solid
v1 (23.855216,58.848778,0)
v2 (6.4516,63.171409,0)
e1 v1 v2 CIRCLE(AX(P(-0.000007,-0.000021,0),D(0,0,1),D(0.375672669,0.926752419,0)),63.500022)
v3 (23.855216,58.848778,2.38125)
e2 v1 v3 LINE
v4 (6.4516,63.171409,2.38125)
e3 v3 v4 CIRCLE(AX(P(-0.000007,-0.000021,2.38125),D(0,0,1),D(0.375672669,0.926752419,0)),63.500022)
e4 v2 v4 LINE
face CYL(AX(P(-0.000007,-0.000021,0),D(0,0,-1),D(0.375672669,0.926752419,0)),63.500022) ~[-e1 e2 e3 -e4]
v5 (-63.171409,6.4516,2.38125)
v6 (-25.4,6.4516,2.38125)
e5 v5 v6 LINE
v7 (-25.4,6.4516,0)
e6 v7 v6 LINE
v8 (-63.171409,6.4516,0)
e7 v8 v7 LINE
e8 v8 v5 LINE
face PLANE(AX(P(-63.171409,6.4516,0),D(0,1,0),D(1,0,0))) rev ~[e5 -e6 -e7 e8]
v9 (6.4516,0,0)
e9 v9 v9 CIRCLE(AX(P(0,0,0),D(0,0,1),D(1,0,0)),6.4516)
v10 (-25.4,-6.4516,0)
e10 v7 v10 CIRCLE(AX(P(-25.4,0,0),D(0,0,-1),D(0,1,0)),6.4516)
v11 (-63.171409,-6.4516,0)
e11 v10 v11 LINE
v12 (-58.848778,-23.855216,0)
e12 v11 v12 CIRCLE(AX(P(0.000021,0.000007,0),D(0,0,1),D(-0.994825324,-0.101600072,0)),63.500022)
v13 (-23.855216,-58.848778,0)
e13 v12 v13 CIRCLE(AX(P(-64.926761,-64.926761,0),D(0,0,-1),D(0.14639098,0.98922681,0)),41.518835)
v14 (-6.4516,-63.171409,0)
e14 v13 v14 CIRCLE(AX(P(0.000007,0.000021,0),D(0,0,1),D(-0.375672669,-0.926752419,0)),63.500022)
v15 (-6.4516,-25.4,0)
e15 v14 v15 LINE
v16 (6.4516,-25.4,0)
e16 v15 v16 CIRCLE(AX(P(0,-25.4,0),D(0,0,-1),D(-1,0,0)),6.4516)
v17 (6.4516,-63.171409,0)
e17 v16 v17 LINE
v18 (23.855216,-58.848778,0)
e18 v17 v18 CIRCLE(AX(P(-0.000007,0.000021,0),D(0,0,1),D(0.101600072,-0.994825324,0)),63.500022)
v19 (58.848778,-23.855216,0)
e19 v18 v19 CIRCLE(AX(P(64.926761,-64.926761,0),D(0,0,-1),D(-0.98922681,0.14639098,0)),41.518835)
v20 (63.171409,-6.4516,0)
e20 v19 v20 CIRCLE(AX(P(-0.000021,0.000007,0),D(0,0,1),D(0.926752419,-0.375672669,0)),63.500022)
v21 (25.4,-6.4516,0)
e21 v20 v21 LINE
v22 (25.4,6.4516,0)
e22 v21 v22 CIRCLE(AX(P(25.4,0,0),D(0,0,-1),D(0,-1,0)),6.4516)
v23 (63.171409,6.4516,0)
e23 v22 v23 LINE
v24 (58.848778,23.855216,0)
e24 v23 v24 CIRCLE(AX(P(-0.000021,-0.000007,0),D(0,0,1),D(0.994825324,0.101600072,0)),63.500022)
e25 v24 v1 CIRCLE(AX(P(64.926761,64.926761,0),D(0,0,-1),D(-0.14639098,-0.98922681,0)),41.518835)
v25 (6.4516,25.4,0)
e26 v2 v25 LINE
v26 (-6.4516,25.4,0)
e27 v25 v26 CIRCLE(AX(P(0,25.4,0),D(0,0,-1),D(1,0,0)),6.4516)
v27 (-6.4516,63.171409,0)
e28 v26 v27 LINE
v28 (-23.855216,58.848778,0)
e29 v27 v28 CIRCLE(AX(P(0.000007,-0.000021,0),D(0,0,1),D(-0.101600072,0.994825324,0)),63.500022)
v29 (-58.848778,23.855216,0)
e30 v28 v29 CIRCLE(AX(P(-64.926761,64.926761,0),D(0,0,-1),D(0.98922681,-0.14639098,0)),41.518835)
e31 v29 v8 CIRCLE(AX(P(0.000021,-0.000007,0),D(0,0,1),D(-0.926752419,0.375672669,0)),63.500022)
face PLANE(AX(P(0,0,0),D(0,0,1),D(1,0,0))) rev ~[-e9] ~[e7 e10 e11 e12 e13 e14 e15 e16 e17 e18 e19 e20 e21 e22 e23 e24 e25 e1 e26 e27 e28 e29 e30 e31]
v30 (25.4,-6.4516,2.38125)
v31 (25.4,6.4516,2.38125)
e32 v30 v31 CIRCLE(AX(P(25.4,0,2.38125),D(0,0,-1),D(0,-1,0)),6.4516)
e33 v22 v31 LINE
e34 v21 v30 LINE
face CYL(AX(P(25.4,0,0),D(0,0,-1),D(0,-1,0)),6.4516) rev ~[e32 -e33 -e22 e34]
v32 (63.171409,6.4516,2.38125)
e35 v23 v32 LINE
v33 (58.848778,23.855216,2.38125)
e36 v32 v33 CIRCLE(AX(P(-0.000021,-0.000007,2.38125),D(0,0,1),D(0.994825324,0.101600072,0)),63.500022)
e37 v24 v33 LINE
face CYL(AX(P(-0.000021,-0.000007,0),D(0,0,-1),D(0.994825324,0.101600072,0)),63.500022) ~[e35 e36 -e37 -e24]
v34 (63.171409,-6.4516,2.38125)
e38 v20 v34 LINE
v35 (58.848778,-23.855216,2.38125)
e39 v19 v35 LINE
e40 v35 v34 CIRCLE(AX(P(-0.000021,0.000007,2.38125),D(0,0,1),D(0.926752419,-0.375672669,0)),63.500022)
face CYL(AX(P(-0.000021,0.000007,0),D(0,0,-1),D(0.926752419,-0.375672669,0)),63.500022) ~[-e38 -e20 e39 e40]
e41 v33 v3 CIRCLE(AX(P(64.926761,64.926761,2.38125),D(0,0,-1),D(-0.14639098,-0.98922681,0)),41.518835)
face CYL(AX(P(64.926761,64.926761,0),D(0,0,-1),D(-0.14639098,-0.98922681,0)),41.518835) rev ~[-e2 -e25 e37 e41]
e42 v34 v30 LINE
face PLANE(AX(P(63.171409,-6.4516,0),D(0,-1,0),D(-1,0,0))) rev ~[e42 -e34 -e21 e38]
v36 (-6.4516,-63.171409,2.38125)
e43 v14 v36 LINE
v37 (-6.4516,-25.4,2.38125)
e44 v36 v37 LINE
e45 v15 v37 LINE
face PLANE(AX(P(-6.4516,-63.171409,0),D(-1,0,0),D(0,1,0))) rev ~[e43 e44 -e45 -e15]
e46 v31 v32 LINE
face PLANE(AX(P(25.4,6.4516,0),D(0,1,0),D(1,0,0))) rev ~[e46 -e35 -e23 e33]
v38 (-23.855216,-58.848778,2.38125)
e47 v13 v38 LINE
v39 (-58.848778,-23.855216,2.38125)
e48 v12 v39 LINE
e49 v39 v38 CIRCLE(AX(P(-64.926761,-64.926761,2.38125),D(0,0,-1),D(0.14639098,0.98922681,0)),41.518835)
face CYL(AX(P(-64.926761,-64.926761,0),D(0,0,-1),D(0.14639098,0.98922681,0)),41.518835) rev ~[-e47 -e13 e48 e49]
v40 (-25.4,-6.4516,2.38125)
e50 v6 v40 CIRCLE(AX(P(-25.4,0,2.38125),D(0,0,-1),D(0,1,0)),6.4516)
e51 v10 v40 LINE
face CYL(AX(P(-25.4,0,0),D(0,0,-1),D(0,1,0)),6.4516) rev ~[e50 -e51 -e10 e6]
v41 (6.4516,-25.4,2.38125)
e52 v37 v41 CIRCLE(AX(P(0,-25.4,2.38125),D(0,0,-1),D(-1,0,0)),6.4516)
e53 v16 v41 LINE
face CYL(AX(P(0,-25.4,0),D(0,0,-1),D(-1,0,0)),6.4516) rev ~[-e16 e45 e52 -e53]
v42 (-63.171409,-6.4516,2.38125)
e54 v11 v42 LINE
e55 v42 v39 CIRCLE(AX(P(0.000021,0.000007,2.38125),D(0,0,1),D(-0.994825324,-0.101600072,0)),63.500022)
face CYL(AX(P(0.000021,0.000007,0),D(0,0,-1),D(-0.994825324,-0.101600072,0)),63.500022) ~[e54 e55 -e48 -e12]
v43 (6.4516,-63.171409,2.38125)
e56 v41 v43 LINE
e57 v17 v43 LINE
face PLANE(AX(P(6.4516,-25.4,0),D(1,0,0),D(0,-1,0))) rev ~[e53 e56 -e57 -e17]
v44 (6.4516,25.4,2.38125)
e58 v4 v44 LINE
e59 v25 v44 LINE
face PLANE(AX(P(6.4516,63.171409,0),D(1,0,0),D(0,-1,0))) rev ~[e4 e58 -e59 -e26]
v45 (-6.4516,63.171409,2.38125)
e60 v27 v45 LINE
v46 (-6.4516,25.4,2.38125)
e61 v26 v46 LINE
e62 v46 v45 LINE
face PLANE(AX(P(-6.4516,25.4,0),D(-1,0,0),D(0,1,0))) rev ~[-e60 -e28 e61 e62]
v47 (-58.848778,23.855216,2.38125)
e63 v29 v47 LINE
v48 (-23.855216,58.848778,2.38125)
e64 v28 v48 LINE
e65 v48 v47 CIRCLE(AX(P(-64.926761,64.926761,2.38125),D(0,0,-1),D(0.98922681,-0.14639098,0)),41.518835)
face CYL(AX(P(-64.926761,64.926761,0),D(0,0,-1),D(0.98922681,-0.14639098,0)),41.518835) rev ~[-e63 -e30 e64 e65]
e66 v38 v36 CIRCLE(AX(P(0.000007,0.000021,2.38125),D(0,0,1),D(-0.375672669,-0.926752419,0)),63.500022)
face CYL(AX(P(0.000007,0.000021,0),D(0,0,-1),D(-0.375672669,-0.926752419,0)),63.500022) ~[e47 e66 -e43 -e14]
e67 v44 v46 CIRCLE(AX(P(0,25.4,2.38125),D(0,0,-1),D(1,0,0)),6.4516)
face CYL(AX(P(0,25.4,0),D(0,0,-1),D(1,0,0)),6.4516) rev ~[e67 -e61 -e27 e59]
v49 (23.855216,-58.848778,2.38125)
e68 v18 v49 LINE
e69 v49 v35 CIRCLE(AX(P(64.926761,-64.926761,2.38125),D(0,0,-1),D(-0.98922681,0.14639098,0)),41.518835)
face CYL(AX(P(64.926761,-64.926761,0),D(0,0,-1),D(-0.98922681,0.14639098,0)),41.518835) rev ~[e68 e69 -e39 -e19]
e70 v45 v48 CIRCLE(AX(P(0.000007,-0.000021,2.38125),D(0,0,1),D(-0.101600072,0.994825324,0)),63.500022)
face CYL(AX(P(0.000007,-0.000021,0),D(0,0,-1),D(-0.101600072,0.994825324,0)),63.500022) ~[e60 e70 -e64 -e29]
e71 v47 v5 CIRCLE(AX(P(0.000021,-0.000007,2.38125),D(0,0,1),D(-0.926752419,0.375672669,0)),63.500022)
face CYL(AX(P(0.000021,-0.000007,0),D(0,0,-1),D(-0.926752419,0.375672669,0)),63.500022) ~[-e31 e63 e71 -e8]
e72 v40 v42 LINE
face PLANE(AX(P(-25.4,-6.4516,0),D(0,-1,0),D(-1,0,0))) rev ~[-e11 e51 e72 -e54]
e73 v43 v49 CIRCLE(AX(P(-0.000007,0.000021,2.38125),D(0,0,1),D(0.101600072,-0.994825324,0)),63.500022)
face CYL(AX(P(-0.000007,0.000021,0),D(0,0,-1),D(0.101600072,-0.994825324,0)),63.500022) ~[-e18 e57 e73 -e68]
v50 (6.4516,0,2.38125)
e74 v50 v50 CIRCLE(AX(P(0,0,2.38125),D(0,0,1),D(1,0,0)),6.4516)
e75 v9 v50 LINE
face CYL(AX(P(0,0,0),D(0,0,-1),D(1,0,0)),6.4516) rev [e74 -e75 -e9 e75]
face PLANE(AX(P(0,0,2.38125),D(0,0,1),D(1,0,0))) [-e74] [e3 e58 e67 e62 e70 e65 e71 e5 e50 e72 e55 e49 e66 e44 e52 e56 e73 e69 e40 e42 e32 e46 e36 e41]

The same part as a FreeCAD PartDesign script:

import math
import FreeCAD as App
import Part
import Sketcher
from FreeCAD import Vector
Q = App.Units.Quantity

doc = App.newDocument("Part")
body = doc.addObject("PartDesign::Body", "Body")

# Sketch on XY plane
sketch1 = doc.addObject("Sketcher::SketchObject", "Sketch")
body.addObject(sketch1)
sketch1.AttachmentSupport = (doc.XY_Plane, [""])
sketch1.MapMode = "FlatFace"
sketch1.addGeometry([
    Part.ArcOfCircle(Part.Circle(Vector(-64.926761, 64.926761, 0), Vector(0, 0, 1), 41.518835), math.radians(-81.582164), math.radians(-8.417836)),  # 0
    Part.ArcOfCircle(Part.Circle(Vector(0.000021, -0.000007, 0), Vector(0, 0, 1), 63.500022), math.radians(157.934106), math.radians(174.168683)),  # 1
    Part.LineSegment(Vector(-63.171409, 6.4516, 0), Vector(-25.4, 6.4516, 0)),  # 2
    Part.ArcOfCircle(Part.Circle(Vector(-25.4, 0, 0), Vector(0, 0, 1), 6.4516), math.radians(-90), math.radians(90)),  # 3
    Part.LineSegment(Vector(-25.4, -6.4516, 0), Vector(-63.171409, -6.4516, 0)),  # 4
    Part.ArcOfCircle(Part.Circle(Vector(0.000021, 0.000007, 0), Vector(0, 0, 1), 63.500022), math.radians(-174.168683), math.radians(-157.934106)),  # 5
    Part.ArcOfCircle(Part.Circle(Vector(-64.926761, -64.926761, 0), Vector(0, 0, 1), 41.518835), math.radians(8.417836), math.radians(81.582164)),  # 6
    Part.ArcOfCircle(Part.Circle(Vector(0.000007, 0.000021, 0), Vector(0, 0, 1), 63.500022), math.radians(-112.065894), math.radians(-95.831317)),  # 7
    Part.LineSegment(Vector(-6.4516, -63.171409, 0), Vector(-6.4516, -25.4, 0)),  # 8
    Part.ArcOfCircle(Part.Circle(Vector(0, -25.4, 0), Vector(0, 0, 1), 6.4516), math.radians(0), math.radians(180)),  # 9
    Part.LineSegment(Vector(6.4516, -25.4, 0), Vector(6.4516, -63.171409, 0)),  # 10
    Part.ArcOfCircle(Part.Circle(Vector(-0.000007, 0.000021, 0), Vector(0, 0, 1), 63.500022), math.radians(-84.168683), math.radians(-67.934106)),  # 11
    Part.ArcOfCircle(Part.Circle(Vector(64.926761, -64.926761, 0), Vector(0, 0, 1), 41.518835), math.radians(98.417836), math.radians(171.582164)),  # 12
    Part.ArcOfCircle(Part.Circle(Vector(-0.000021, 0.000007, 0), Vector(0, 0, 1), 63.500022), math.radians(-22.065894), math.radians(-5.831317)),  # 13
    Part.LineSegment(Vector(63.171409, -6.4516, 0), Vector(25.4, -6.4516, 0)),  # 14
    Part.ArcOfCircle(Part.Circle(Vector(25.4, 0, 0), Vector(0, 0, 1), 6.4516), math.radians(90), math.radians(270)),  # 15
    Part.LineSegment(Vector(25.4, 6.4516, 0), Vector(63.171409, 6.4516, 0)),  # 16
    Part.ArcOfCircle(Part.Circle(Vector(-0.000021, -0.000007, 0), Vector(0, 0, 1), 63.500022), math.radians(5.831317), math.radians(22.065894)),  # 17
    Part.ArcOfCircle(Part.Circle(Vector(64.926761, 64.926761, 0), Vector(0, 0, 1), 41.518835), math.radians(-171.582164), math.radians(-98.417836)),  # 18
    Part.ArcOfCircle(Part.Circle(Vector(-0.000007, -0.000021, 0), Vector(0, 0, 1), 63.500022), math.radians(67.934106), math.radians(84.168683)),  # 19
    Part.LineSegment(Vector(6.4516, 63.171409, 0), Vector(6.4516, 25.4, 0)),  # 20
    Part.ArcOfCircle(Part.Circle(Vector(0, 25.4, 0), Vector(0, 0, 1), 6.4516), math.radians(180), math.radians(360)),  # 21
    Part.LineSegment(Vector(-6.4516, 25.4, 0), Vector(-6.4516, 63.171409, 0)),  # 22
    Part.ArcOfCircle(Part.Circle(Vector(0.000007, -0.000021, 0), Vector(0, 0, 1), 63.500022), math.radians(95.831317), math.radians(112.065894)),  # 23
    Part.Circle(Vector(0, 0, 0), Vector(0, 0, 1), 6.4516),  # 24
], False)
sketch1.addConstraint([
    Sketcher.Constraint("Coincident", 0, 1, 1, 1),
    Sketcher.Constraint("Coincident", 1, 2, 2, 1),
    Sketcher.Constraint("Tangent", 2, 2, 3, 2),
    Sketcher.Constraint("Tangent", 3, 1, 4, 1),
    Sketcher.Constraint("Coincident", 4, 2, 5, 1),
    Sketcher.Constraint("Coincident", 5, 2, 6, 2),
    Sketcher.Constraint("Coincident", 6, 1, 7, 1),
    Sketcher.Constraint("Coincident", 7, 2, 8, 1),
    Sketcher.Constraint("Tangent", 8, 2, 9, 2),
    Sketcher.Constraint("Tangent", 9, 1, 10, 1),
    Sketcher.Constraint("Coincident", 10, 2, 11, 1),
    Sketcher.Constraint("Coincident", 11, 2, 12, 2),
    Sketcher.Constraint("Coincident", 12, 1, 13, 1),
    Sketcher.Constraint("Coincident", 13, 2, 14, 1),
    Sketcher.Constraint("Tangent", 14, 2, 15, 2),
    Sketcher.Constraint("Tangent", 15, 1, 16, 1),
    Sketcher.Constraint("Coincident", 16, 2, 17, 1),
    Sketcher.Constraint("Coincident", 17, 2, 18, 2),
    Sketcher.Constraint("Coincident", 18, 1, 19, 1),
    Sketcher.Constraint("Coincident", 19, 2, 20, 1),
    Sketcher.Constraint("Tangent", 20, 2, 21, 2),
    Sketcher.Constraint("Tangent", 21, 1, 22, 1),
    Sketcher.Constraint("Coincident", 22, 2, 23, 1),
    Sketcher.Constraint("Coincident", 23, 2, 0, 2),
    Sketcher.Constraint("Horizontal", 2),
    Sketcher.Constraint("Horizontal", 4),
    Sketcher.Constraint("Vertical", 8),
    Sketcher.Constraint("Vertical", 10),
    Sketcher.Constraint("Horizontal", 14),
    Sketcher.Constraint("Horizontal", 16),
    Sketcher.Constraint("Vertical", 20),
    Sketcher.Constraint("Vertical", 22),
    Sketcher.Constraint("Coincident", 24, 3, -1, 1),
    Sketcher.Constraint("Equal", 1, 5),
    Sketcher.Constraint("Equal", 0, 6),
    Sketcher.Constraint("Equal", 5, 7),
    Sketcher.Constraint("Equal", 3, 9),
    Sketcher.Constraint("Equal", 7, 11),
    Sketcher.Constraint("Equal", 6, 12),
    Sketcher.Constraint("Equal", 11, 13),
    Sketcher.Constraint("Equal", 9, 15),
    Sketcher.Constraint("Equal", 13, 17),
    Sketcher.Constraint("Equal", 12, 18),
    Sketcher.Constraint("Equal", 17, 19),
    Sketcher.Constraint("Equal", 15, 21),
    Sketcher.Constraint("Equal", 19, 23),
    Sketcher.Constraint("Equal", 21, 24),
    Sketcher.Constraint("Symmetric", 0, 3, 12, 3, -1, 1),
    Sketcher.Constraint("Symmetric", 1, 3, 13, 3, -1, 1),
    Sketcher.Constraint("Symmetric", 3, 3, 15, 3, -1, 1),
    Sketcher.Constraint("Symmetric", 5, 3, 17, 3, -1, 1),
    Sketcher.Constraint("Symmetric", 6, 3, 18, 3, -1, 1),
    Sketcher.Constraint("Symmetric", 7, 3, 19, 3, -1, 1),
    Sketcher.Constraint("Symmetric", 9, 3, 21, 3, -1, 1),
    Sketcher.Constraint("Symmetric", 11, 3, 23, 3, -1, 1),
    Sketcher.Constraint("Symmetric", 7, 3, 11, 3, -2),
    Sketcher.Constraint("Symmetric", 6, 3, 12, 3, -2),
    Sketcher.Constraint("Symmetric", 5, 3, 13, 3, -2),
    Sketcher.Constraint("PointOnObject", 3, 3, -1),
    Sketcher.Constraint("PointOnObject", 9, 3, -2),
    Sketcher.Constraint("Equal", 16, 8),
    Sketcher.Constraint("Diameter", 24, Q("0.508 in")),
    Sketcher.Constraint("DistanceX", 3, 3, -1, 1, Q("1 in")),
    Sketcher.Constraint("DistanceY", 9, 3, -1, 1, Q("1 in")),
    Sketcher.Constraint("Radius", 0, Q("1.6345998 in")),
    Sketcher.Constraint("Radius", 1, Q("63.500022 mm")),
    Sketcher.Constraint("DistanceX", 2, 1, 2, 2, Q("37.771409 mm")),
    Sketcher.Constraint("DistanceX", 0, 3, -1, 1, Q("64.926761 mm")),
    Sketcher.Constraint("DistanceY", -1, 1, 0, 3, Q("64.926761 mm")),
    Sketcher.Constraint("DistanceX", 5, 2, -1, 1, Q("58.848778 mm")),
    Sketcher.Constraint("DistanceY", 11, 2, -1, 1, Q("58.848778 mm")),
])
pad1 = doc.addObject("PartDesign::Pad", "Pad")
body.addObject(pad1)
pad1.Profile = sketch1
pad1.Length = Q("0.09375 in")

doc.recompute()
